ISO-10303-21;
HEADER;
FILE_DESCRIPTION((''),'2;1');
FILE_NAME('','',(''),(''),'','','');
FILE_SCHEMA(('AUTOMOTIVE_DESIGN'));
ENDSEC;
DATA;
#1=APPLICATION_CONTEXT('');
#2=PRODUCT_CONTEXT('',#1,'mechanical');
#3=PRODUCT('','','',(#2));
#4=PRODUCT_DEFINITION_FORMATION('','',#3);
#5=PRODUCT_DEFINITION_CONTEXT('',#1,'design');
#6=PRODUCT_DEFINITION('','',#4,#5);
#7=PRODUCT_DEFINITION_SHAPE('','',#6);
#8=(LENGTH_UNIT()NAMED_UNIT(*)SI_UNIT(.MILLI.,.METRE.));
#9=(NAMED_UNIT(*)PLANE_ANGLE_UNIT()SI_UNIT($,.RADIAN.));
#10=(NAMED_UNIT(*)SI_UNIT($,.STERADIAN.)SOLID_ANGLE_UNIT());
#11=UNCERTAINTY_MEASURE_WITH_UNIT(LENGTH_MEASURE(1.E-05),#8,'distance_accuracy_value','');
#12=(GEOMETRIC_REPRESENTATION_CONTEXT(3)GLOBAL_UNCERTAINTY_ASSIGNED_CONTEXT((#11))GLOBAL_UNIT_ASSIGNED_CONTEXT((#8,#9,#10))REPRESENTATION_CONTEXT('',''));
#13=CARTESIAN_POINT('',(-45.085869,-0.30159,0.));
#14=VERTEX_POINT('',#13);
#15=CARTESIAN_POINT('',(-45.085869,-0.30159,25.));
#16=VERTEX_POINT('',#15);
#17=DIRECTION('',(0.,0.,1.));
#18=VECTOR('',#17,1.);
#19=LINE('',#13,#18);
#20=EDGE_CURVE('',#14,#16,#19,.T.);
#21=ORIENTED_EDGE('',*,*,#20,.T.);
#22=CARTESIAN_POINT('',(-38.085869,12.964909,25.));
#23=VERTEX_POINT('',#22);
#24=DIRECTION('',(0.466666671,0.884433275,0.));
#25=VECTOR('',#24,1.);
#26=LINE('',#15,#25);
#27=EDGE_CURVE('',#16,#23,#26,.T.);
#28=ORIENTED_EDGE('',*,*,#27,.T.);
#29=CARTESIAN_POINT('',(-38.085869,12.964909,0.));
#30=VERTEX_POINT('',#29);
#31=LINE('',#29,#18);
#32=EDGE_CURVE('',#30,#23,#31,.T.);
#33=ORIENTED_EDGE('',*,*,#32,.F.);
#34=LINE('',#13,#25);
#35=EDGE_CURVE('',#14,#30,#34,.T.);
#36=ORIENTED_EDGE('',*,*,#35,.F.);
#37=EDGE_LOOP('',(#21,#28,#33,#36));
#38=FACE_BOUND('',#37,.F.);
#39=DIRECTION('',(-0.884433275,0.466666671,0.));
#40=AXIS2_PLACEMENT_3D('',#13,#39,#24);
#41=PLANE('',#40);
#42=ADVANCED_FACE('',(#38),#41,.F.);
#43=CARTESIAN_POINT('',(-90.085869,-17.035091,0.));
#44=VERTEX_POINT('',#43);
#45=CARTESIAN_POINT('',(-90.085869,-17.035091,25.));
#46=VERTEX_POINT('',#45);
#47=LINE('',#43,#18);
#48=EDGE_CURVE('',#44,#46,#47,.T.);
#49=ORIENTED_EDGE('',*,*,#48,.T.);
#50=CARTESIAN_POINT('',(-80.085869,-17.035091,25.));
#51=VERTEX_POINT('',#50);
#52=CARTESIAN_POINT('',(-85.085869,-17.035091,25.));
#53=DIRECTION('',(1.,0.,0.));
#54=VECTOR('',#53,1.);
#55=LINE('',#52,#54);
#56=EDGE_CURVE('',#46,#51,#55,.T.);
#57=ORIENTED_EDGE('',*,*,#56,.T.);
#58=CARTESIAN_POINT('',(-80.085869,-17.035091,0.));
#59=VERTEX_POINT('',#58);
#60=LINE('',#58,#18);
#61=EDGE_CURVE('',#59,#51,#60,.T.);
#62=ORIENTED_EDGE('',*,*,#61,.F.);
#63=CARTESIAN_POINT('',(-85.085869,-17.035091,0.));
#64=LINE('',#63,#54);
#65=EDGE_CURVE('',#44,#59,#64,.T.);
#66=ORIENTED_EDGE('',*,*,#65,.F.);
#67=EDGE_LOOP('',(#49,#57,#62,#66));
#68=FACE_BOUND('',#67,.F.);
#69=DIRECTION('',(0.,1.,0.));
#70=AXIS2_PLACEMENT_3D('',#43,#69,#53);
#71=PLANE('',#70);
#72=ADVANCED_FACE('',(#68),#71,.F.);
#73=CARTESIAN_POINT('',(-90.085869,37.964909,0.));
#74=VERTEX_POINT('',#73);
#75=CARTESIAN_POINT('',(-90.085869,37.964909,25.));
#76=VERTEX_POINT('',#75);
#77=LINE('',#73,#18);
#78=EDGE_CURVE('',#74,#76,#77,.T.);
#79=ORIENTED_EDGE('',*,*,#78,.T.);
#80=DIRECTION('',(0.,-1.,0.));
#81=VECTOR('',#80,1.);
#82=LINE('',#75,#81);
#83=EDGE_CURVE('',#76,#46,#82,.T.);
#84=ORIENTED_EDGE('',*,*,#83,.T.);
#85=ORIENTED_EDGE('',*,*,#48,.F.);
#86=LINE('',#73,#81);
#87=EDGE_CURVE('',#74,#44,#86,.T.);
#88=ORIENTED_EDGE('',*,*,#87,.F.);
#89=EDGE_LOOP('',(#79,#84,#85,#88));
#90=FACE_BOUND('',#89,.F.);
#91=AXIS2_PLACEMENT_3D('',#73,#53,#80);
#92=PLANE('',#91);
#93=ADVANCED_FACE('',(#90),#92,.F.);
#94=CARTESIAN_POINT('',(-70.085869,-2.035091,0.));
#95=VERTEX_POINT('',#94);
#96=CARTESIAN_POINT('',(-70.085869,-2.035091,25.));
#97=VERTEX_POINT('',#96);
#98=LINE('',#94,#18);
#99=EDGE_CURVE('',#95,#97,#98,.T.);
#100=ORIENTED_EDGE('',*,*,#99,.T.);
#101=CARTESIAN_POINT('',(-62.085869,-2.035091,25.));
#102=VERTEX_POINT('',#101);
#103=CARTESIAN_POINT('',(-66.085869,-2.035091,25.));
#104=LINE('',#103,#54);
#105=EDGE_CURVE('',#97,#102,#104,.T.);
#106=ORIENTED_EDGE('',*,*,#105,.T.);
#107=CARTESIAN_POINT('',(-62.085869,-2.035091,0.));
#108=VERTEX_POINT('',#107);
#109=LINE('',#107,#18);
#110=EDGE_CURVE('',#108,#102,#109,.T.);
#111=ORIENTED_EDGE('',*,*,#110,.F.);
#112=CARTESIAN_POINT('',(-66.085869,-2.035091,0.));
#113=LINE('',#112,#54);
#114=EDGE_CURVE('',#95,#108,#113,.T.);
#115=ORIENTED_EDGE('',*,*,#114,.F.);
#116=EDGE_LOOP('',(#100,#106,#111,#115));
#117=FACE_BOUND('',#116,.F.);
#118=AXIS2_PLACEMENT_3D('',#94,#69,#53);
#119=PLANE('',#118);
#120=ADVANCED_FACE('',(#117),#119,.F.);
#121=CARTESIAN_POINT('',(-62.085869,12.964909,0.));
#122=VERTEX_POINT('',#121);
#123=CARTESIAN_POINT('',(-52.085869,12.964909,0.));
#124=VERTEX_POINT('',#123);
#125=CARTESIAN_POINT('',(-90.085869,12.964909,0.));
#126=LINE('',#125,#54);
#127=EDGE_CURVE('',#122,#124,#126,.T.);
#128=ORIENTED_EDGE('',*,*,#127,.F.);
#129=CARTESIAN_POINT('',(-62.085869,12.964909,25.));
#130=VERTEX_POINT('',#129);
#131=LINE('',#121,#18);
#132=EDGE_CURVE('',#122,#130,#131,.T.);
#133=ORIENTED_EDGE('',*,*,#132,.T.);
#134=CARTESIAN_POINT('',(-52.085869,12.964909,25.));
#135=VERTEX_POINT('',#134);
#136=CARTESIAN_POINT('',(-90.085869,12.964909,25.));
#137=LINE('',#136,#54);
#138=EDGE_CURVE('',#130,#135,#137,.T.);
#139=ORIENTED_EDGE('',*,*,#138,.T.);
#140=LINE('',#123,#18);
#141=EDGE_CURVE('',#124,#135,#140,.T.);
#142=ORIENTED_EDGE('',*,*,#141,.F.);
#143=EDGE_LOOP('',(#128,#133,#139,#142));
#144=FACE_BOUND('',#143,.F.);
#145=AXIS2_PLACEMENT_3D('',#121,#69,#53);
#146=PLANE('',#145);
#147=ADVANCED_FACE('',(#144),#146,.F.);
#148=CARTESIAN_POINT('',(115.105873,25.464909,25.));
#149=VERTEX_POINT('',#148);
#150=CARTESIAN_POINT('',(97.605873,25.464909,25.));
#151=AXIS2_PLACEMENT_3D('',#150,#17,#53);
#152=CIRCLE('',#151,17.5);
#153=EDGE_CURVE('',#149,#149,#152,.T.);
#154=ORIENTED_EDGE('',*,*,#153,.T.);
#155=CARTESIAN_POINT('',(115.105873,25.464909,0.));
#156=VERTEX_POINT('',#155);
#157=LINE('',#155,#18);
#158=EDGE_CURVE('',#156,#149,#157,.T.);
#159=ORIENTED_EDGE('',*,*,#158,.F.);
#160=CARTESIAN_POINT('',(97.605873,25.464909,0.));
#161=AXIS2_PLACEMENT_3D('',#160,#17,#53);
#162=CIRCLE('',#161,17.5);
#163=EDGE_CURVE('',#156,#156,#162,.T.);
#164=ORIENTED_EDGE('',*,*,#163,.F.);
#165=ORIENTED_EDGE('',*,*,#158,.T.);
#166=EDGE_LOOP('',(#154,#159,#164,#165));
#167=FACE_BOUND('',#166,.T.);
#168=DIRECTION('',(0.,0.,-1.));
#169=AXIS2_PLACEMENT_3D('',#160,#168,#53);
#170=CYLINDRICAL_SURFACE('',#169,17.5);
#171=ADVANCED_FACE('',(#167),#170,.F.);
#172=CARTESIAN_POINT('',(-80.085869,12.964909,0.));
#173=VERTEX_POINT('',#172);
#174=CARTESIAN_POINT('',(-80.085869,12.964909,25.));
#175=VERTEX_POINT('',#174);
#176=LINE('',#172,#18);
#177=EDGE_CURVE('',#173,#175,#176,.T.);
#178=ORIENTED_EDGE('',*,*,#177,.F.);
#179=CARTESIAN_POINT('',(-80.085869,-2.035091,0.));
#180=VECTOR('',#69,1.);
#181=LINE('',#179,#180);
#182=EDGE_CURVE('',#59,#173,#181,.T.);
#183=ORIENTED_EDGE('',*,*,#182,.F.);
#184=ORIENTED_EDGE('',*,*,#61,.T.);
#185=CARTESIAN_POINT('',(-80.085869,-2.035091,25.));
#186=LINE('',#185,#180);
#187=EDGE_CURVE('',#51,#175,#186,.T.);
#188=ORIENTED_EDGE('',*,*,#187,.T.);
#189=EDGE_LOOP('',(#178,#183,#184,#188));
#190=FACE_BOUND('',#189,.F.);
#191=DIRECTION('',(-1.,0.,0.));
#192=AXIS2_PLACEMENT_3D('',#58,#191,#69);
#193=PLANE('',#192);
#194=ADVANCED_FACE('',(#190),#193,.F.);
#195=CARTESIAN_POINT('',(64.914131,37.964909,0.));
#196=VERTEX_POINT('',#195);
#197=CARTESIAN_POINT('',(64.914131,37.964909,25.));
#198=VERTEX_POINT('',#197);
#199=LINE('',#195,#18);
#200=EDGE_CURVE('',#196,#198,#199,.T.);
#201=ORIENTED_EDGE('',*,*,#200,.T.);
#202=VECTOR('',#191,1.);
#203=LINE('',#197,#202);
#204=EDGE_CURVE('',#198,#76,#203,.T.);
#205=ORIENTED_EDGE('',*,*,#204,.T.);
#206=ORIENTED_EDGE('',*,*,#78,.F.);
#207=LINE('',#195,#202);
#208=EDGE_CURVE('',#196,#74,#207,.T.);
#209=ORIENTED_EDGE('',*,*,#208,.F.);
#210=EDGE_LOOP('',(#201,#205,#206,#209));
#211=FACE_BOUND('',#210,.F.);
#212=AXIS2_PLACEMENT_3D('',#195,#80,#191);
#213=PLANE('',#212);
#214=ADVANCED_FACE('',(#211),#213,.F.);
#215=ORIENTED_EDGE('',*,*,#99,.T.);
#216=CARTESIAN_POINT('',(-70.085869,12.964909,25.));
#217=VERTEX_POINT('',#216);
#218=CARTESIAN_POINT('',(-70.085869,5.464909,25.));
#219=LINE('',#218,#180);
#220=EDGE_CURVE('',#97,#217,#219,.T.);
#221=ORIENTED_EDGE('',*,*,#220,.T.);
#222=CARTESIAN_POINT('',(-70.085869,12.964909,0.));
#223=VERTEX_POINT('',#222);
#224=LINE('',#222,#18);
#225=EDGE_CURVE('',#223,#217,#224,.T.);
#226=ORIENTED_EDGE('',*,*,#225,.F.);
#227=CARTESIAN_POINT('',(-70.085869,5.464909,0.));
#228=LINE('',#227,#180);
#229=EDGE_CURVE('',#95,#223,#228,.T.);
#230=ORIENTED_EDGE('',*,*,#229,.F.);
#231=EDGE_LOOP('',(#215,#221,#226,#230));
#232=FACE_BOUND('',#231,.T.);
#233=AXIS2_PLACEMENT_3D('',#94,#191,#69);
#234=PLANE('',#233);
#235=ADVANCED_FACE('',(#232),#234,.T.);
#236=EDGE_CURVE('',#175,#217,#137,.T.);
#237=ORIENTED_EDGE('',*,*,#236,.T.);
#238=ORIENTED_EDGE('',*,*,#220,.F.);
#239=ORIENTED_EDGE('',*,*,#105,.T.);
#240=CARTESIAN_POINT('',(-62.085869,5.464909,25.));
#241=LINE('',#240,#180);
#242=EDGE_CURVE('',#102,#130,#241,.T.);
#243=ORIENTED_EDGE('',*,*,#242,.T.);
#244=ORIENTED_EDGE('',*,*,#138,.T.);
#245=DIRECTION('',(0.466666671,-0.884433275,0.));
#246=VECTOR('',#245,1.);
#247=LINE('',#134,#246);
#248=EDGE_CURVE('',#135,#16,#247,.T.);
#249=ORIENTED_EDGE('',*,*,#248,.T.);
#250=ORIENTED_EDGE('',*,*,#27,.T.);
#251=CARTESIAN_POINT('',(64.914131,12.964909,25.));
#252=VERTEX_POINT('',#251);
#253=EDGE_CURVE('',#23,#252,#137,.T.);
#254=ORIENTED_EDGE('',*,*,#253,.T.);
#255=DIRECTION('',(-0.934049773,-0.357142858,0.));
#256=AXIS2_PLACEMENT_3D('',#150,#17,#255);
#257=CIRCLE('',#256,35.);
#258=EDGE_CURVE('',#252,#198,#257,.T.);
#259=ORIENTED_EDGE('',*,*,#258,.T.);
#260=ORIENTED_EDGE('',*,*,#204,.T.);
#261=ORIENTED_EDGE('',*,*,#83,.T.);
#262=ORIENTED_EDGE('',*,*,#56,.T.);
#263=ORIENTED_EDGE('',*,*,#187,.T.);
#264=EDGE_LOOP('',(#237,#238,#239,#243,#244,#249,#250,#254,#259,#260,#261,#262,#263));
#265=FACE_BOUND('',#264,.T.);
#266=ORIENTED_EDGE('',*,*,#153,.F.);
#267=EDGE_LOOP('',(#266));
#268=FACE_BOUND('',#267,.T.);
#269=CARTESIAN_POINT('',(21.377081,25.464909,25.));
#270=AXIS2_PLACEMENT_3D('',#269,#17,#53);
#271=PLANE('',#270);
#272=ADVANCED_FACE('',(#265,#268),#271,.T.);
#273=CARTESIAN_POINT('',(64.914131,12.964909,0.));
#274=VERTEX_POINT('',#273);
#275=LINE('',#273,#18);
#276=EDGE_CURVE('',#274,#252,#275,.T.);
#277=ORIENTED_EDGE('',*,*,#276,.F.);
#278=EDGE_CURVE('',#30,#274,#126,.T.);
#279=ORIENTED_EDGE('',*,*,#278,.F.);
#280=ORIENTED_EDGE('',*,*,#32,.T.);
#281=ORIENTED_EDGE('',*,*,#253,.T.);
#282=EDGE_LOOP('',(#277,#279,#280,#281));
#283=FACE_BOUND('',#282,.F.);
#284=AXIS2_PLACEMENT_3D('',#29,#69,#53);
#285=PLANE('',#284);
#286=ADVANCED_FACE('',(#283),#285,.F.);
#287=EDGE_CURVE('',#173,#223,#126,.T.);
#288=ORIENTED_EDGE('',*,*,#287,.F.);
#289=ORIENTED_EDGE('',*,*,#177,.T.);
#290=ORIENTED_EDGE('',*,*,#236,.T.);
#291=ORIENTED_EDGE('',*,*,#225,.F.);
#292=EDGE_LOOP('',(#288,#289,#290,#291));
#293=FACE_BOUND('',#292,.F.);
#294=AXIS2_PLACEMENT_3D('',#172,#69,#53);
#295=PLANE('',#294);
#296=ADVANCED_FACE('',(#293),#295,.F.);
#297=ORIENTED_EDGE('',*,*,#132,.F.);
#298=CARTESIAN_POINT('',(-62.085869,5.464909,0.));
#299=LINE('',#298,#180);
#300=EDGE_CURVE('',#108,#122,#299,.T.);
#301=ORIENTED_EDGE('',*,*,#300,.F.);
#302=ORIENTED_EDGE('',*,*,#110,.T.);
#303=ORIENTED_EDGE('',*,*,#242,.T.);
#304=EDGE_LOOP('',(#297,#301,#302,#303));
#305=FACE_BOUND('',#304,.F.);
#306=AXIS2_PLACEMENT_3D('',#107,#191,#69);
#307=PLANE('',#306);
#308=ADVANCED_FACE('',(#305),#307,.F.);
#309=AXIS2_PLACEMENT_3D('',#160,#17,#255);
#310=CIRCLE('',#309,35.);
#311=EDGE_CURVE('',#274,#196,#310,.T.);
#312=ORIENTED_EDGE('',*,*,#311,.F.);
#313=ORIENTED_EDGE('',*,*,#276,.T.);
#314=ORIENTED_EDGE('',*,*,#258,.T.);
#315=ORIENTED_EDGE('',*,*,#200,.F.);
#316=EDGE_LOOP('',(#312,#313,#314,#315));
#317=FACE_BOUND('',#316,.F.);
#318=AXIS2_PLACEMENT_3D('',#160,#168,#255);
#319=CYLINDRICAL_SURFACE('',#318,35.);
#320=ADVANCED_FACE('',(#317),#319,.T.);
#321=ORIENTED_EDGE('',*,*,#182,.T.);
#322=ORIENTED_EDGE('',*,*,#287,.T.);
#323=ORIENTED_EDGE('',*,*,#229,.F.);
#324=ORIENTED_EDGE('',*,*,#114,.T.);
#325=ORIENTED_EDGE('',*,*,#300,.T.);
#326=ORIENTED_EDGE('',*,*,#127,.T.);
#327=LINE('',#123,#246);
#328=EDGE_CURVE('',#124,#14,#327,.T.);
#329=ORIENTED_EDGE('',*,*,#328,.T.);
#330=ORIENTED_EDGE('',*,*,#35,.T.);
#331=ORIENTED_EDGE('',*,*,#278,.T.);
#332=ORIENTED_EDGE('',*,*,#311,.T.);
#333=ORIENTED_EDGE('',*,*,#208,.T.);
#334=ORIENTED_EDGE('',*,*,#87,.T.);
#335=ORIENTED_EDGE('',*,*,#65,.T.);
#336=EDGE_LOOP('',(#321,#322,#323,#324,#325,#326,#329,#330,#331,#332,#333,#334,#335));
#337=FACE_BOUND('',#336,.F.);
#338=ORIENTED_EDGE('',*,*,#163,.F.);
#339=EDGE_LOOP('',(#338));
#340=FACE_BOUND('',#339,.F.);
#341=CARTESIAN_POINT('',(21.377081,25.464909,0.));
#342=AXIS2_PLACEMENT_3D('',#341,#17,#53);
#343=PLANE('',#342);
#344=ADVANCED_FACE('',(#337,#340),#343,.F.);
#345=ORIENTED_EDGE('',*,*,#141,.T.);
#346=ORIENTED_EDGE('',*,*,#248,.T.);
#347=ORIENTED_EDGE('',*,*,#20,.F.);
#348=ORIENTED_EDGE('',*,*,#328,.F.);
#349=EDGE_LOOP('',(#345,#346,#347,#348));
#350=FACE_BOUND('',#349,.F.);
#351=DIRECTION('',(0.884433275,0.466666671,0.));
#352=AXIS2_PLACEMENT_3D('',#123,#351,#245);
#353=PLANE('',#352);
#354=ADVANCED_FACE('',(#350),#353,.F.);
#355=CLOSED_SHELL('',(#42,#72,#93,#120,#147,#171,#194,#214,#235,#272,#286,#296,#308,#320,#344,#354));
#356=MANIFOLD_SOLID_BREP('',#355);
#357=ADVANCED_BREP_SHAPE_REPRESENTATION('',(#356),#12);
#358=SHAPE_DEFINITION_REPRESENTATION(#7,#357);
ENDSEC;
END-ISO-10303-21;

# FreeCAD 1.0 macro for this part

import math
import FreeCAD as App
import Part
import Sketcher

V = App.Vector

doc = App.newDocument("Part")
body = doc.addObject("PartDesign::Body", "Body")

sketch1 = body.newObject("Sketcher::SketchObject", "Sketch")
sketch1.AttachmentSupport = (doc.getObject("XY_Plane"), [""])
sketch1.MapMode = "FlatFace"
sketch1.addGeometry([
    Part.LineSegment(V(65, 38, 0), V(-90, 38, 0)),
    Part.LineSegment(V(-90, 38, 0), V(-90, -17, 0)),
    Part.LineSegment(V(-90, -17, 0), V(-80, -17, 0)),
    Part.LineSegment(V(-80, -17, 0), V(-80, 13, 0)),
    Part.LineSegment(V(-80, 13, 0), V(-70, 13, 0)),
    Part.LineSegment(V(-70, 13, 0), V(-70, -2, 0)),
    Part.LineSegment(V(-70, -2, 0), V(-62, -2, 0)),
    Part.LineSegment(V(-62, -2, 0), V(-62, 13, 0)),
    Part.LineSegment(V(-62, 13, 0), V(-52, 13, 0)),
    Part.LineSegment(V(-52, 13, 0), V(-45, 0, 0)),
    Part.LineSegment(V(-45, 0, 0), V(-38, 13, 0)),
    Part.LineSegment(V(-38, 13, 0), V(65, 13, 0)),
    Part.ArcOfCircle(Part.Circle(V(98, 25, 0), V(0, 0, 1), 35), math.radians(-159), math.radians(159)),
    Part.Circle(V(98, 25, 0), V(0, 0, 1), 18),
], False)
sketch1.addConstraint([
    Sketcher.Constraint("Coincident", 0, 2, 1, 1),
    Sketcher.Constraint("Coincident", 1, 2, 2, 1),
    Sketcher.Constraint("Coincident", 2, 2, 3, 1),
    Sketcher.Constraint("Coincident", 3, 2, 4, 1),
    Sketcher.Constraint("Coincident", 4, 2, 5, 1),
    Sketcher.Constraint("Coincident", 5, 2, 6, 1),
    Sketcher.Constraint("Coincident", 6, 2, 7, 1),
    Sketcher.Constraint("Coincident", 7, 2, 8, 1),
    Sketcher.Constraint("Coincident", 8, 2, 9, 1),
    Sketcher.Constraint("Coincident", 9, 2, 10, 1),
    Sketcher.Constraint("Coincident", 10, 2, 11, 1),
    Sketcher.Constraint("Coincident", 11, 2, 12, 1),
    Sketcher.Constraint("Coincident", 12, 2, 0, 1),
    Sketcher.Constraint("Horizontal", 0),
    Sketcher.Constraint("Vertical", 1),
    Sketcher.Constraint("Horizontal", 2),
    Sketcher.Constraint("Vertical", 3),
    Sketcher.Constraint("Horizontal", 4),
    Sketcher.Constraint("Vertical", 5),
    Sketcher.Constraint("Horizontal", 6),
    Sketcher.Constraint("Vertical", 7),
    Sketcher.Constraint("Horizontal", 8),
    Sketcher.Constraint("Horizontal", 11),
    Sketcher.Constraint("Coincident", 13, 3, 12, 3),
    Sketcher.Constraint("Horizontal", 4, 2, 7, 2),
    Sketcher.Constraint("Horizontal", 8, 2, 10, 2),
    Sketcher.Constraint("Vertical", 11, 2, 12, 2),
    Sketcher.Constraint("Equal", 2, 4),
    Sketcher.Constraint("Equal", 4, 8),
    Sketcher.Constraint("Equal", 9, 10),
    Sketcher.Constraint("Diameter", 13, 35.0),
    Sketcher.Constraint("Radius", 12, 35.0),
    Sketcher.Constraint("DistanceX", 0, 2, 0, 1, 155.0),
    Sketcher.Constraint("DistanceX", 2, 1, 2, 2, 10.0),
    Sketcher.Constraint("DistanceX", 6, 1, 6, 2, 8.0),
    Sketcher.Constraint("DistanceX", 11, 1, 11, 2, 103.0),
    Sketcher.Constraint("DistanceY", 1, 2, 1, 1, 55.0),
    Sketcher.Constraint("DistanceY", 3, 1, 3, 2, 30.0),
    Sketcher.Constraint("DistanceY", 5, 2, 5, 1, 15.0),
    Sketcher.Constraint("Distance", 9, 15.0),
    Sketcher.Constraint("DistanceY", -1, 1, 12, 3, 25.464909),
    Sketcher.Constraint("DistanceX", 0, 2, -1, 1, 90.085869),
])
pad1 = body.newObject("PartDesign::Pad", "Pad")
pad1.Profile = sketch1
pad1.Length = 25

doc.recompute()
